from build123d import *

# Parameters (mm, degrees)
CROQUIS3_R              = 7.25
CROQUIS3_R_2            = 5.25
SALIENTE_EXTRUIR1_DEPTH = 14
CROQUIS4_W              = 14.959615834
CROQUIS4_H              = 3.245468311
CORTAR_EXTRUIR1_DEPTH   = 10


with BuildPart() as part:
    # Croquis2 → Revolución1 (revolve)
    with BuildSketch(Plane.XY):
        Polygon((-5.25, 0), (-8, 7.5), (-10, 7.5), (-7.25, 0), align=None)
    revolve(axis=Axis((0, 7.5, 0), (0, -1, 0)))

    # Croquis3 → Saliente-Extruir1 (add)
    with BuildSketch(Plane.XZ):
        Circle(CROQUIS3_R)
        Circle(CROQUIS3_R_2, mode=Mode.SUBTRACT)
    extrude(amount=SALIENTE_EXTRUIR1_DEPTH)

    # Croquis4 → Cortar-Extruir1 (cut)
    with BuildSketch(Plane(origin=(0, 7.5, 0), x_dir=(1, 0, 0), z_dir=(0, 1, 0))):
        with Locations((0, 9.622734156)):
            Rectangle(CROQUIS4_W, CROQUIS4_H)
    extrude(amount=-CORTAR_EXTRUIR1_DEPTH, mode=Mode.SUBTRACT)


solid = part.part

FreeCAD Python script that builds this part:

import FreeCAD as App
import Part
import Sketcher
Q = App.Units.Quantity

doc = App.newDocument("Part")
body = doc.addObject("PartDesign::Body", "Body")

# Sketch on XY plane
sketch1 = body.newObject("Sketcher::SketchObject", "Sketch")
sketch1.AttachmentSupport = (doc.getObject("XY_Plane"), [""])
sketch1.MapMode = "FlatFace"
sketch1.addGeometry([
    Part.LineSegment(App.Vector(-5.25, 0, 0), App.Vector(-8, 7.5, 0)),
    Part.LineSegment(App.Vector(-8, 7.5, 0), App.Vector(-10, 7.5, 0)),
    Part.LineSegment(App.Vector(-10, 7.5, 0), App.Vector(-7.25, 0, 0)),
    Part.LineSegment(App.Vector(-7.25, 0, 0), App.Vector(-5.25, 0, 0)),
], False)
sketch1.addConstraint([
    Sketcher.Constraint("Coincident", 0, 2, 1, 1),
    Sketcher.Constraint("Coincident", 1, 2, 2, 1),
    Sketcher.Constraint("Coincident", 2, 2, 3, 1),
    Sketcher.Constraint("Coincident", 3, 2, 0, 1),
    Sketcher.Constraint("Horizontal", 1),
    Sketcher.Constraint("Horizontal", 3),
    Sketcher.Constraint("PointOnObject", 2, 2, -1),
    Sketcher.Constraint("Parallel", 0, 2),
    Sketcher.Constraint("DistanceX", 1, 2, 1, 1, Q("2 mm")),
    Sketcher.Constraint("DistanceX", 0, 2, -1, 1, Q("8 mm")),
    Sketcher.Constraint("DistanceY", -1, 1, 0, 2, Q("7.5 mm")),
    Sketcher.Constraint("DistanceX", 2, 2, -1, 1, Q("7.25 mm")),
])
revolution = body.newObject("PartDesign::Revolution", "Revolution")
revolution.Profile = sketch1
revolution.ReferenceAxis = (sketch1, ["V_Axis"])
revolution.Angle = 360

# Sketch on XZ plane
sketch2 = body.newObject("Sketcher::SketchObject", "Sketch001")
sketch2.AttachmentSupport = (doc.getObject("XZ_Plane"), [""])
sketch2.MapMode = "FlatFace"
sketch2.addGeometry([
    Part.Circle(App.Vector(0, 0, 0), App.Vector(0, 0, 1), 7.25),
    Part.Circle(App.Vector(0, 0, 0), App.Vector(0, 0, 1), 5.25),
], False)
sketch2.addConstraint([
    Sketcher.Constraint("Coincident", 0, 3, -1, 1),
    Sketcher.Constraint("Coincident", 1, 3, -1, 1),
    Sketcher.Constraint("Diameter", 0, Q("14.5 mm")),
    Sketcher.Constraint("Diameter", 1, Q("10.5 mm")),
])
pad1 = body.newObject("PartDesign::Pad", "Pad")
pad1.Profile = sketch2
pad1.Length = 14

# Sketch on XZ plane
sketch3 = body.newObject("Sketcher::SketchObject", "Sketch002")
sketch3.AttachmentSupport = (doc.getObject("XZ_Plane"), [""])
sketch3.MapMode = "FlatFace"
sketch3.AttachmentOffset = App.Placement(App.Vector(0, 0, -7.5), App.Rotation())
sketch3.addGeometry([
    Part.LineSegment(App.Vector(-7.479808, -11.245468, 0), App.Vector(-7.479808, -8, 0)),
    Part.LineSegment(App.Vector(-7.479808, -8, 0), App.Vector(7.479808, -8, 0)),
    Part.LineSegment(App.Vector(7.479808, -8, 0), App.Vector(7.479808, -11.245468, 0)),
    Part.LineSegment(App.Vector(7.479808, -11.245468, 0), App.Vector(-7.479808, -11.245468, 0)),
], False)
sketch3.addConstraint([
    Sketcher.Constraint("Coincident", 0, 2, 1, 1),
    Sketcher.Constraint("Coincident", 1, 2, 2, 1),
    Sketcher.Constraint("Coincident", 2, 2, 3, 1),
    Sketcher.Constraint("Coincident", 3, 2, 0, 1),
    Sketcher.Constraint("Vertical", 0),
    Sketcher.Constraint("Horizontal", 1),
    Sketcher.Constraint("Vertical", 2),
    Sketcher.Constraint("Horizontal", 3),
    Sketcher.Constraint("DistanceY", 0, 2, -1, 1, Q("8 mm")),
    Sketcher.Constraint("DistanceY", 0, 1, 0, 2, Q("3.245468 mm")),
    Sketcher.Constraint("DistanceX", 1, 1, 1, 2, Q("14.959616 mm")),
    Sketcher.Constraint("DistanceX", 0, 2, -1, 1, Q("7.479808 mm")),
])
pocket1 = body.newObject("PartDesign::Pocket", "Pocket")
pocket1.Profile = sketch3
pocket1.Length = 10
pocket1.Reversed = True

doc.recompute()
